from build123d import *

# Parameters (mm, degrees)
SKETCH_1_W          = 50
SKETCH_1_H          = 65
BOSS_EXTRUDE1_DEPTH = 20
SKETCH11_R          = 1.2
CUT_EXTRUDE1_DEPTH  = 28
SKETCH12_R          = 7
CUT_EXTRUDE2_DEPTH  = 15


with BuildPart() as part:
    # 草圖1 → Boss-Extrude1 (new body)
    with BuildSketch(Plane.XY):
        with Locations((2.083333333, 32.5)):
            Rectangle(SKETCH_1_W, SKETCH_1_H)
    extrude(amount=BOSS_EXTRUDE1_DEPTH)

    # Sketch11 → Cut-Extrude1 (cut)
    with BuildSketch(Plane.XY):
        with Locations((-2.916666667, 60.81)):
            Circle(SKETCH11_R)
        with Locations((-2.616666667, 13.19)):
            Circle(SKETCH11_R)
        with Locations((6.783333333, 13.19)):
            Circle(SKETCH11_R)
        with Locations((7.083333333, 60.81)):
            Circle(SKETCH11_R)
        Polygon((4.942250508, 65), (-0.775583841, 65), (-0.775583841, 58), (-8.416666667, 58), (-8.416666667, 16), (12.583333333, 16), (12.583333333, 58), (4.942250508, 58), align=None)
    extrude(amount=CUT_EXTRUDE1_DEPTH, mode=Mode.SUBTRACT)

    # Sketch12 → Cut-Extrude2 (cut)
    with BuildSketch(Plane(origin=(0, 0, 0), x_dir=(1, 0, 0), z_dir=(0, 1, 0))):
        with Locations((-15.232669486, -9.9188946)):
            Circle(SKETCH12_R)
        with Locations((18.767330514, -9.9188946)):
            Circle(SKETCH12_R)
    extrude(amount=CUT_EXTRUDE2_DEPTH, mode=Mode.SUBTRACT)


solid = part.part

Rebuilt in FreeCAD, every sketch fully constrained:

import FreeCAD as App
import Part
import Sketcher


def add_polygon(sketch, points):
    """Adds a closed chain of lines whose ends are joined by coincident constraints."""
    first, n = sketch.GeometryCount, len(points)
    for a, b in zip(points, points[1:] + points[:1]):
        sketch.addGeometry(Part.LineSegment(App.Vector(*a, 0), App.Vector(*b, 0)), False)
    for i in range(n):
        sketch.addConstraint(Sketcher.Constraint("Coincident", first + i, 2, first + (i + 1) % n, 1))

doc = App.newDocument("Part")
body = doc.addObject("PartDesign::Body", "Body")

# Sketch on XY plane
sketch1 = body.newObject("Sketcher::SketchObject", "Sketch")
sketch1.AttachmentSupport = (doc.getObject("XY_Plane"), [""])
sketch1.MapMode = "FlatFace"
add_polygon(sketch1, [(-23, 65), (-23, 0), (27, 0), (27, 65)])  # lines 0-3
sketch1.addConstraint([
    Sketcher.Constraint("Vertical", 0),
    Sketcher.Constraint("Horizontal", 1),
    Sketcher.Constraint("Vertical", 2),
    Sketcher.Constraint("Horizontal", 3),
    Sketcher.Constraint("PointOnObject", 0, 2, -1),
    Sketcher.Constraint("DistanceX", 1, 1, 1, 2, 50.0),
    Sketcher.Constraint("DistanceY", 0, 2, 0, 1, 65.0),
    Sketcher.Constraint("DistanceX", 0, 2, -1, 1, 22.916667),
])
pad1 = body.newObject("PartDesign::Pad", "Pad")
pad1.Profile = sketch1
pad1.Length = 20

# Sketch on XY plane
sketch2 = body.newObject("Sketcher::SketchObject", "Sketch001")
sketch2.AttachmentSupport = (doc.getObject("XY_Plane"), [""])
sketch2.MapMode = "FlatFace"
sketch2.addGeometry(Part.Circle(App.Vector(-2.9, 60.8, 0), App.Vector(0, 0, 1), 1.2), False)  # 0
sketch2.addGeometry(Part.Circle(App.Vector(-2.6, 13.2, 0), App.Vector(0, 0, 1), 1.2), False)  # 1
sketch2.addGeometry(Part.Circle(App.Vector(6.8, 13.2, 0), App.Vector(0, 0, 1), 1.2), False)  # 2
sketch2.addGeometry(Part.Circle(App.Vector(7.1, 60.8, 0), App.Vector(0, 0, 1), 1.2), False)  # 3
add_polygon(sketch2, [(4.9, 65), (-0.8, 65), (-0.8, 58), (-8.4, 58), (-8.4, 16), (12.6, 16), (12.6, 58), (4.9, 58)])  # lines 4-11
sketch2.addConstraint([
    Sketcher.Constraint("Horizontal", 4),
    Sketcher.Constraint("Vertical", 5),
    Sketcher.Constraint("Horizontal", 6),
    Sketcher.Constraint("Vertical", 7),
    Sketcher.Constraint("Horizontal", 8),
    Sketcher.Constraint("Vertical", 9),
    Sketcher.Constraint("Horizontal", 10),
    Sketcher.Constraint("Vertical", 11),
    Sketcher.Constraint("Equal", 0, 1),
    Sketcher.Constraint("Equal", 1, 2),
    Sketcher.Constraint("Equal", 2, 3),
    Sketcher.Constraint("Horizontal", 1, 3, 2, 3),
    Sketcher.Constraint("Horizontal", 0, 3, 3, 3),
    Sketcher.Constraint("Horizontal", 6, 2, 9, 2),
    Sketcher.Constraint("Equal", 6, 10),
    Sketcher.Constraint("Diameter", 0, 2.4),
    Sketcher.Constraint("DistanceX", 8, 1, 8, 2, 21.0),
    Sketcher.Constraint("DistanceY", 5, 2, 5, 1, 7.0),
    Sketcher.Constraint("DistanceY", 7, 2, 7, 1, 42.0),
    Sketcher.Constraint("DistanceY", -1, 1, 4, 2, 65.0),
    Sketcher.Constraint("DistanceX", 0, 3, 3, 3, 10.0),
    Sketcher.Constraint("DistanceX", 0, 3, 1, 3, 0.3),
    Sketcher.Constraint("DistanceX", 1, 3, 2, 3, 9.4),
    Sketcher.Constraint("DistanceX", 6, 2, 0, 3, 5.5),
    Sketcher.Constraint("DistanceY", -1, 1, 0, 3, 60.81),
    Sketcher.Constraint("DistanceY", -1, 1, 1, 3, 13.19),
    Sketcher.Constraint("DistanceX", 4, 2, 4, 1, 5.717834),
    Sketcher.Constraint("DistanceX", -1, 1, 10, 2, 4.942251),
])
pocket1 = body.newObject("PartDesign::Pocket", "Pocket")
pocket1.Profile = sketch2
pocket1.Length = 28
pocket1.Reversed = True

# Sketch on XZ plane
sketch3 = body.newObject("Sketcher::SketchObject", "Sketch002")
sketch3.AttachmentSupport = (doc.getObject("XZ_Plane"), [""])
sketch3.MapMode = "FlatFace"
sketch3.addGeometry([
    Part.Circle(App.Vector(-15, 10, 0), App.Vector(0, 0, 1), 7),
    Part.Circle(App.Vector(19, 10, 0), App.Vector(0, 0, 1), 7),
], False)
sketch3.addConstraint([
    Sketcher.Constraint("Equal", 0, 1),
    Sketcher.Constraint("Horizontal", 0, 3, 1, 3),
    Sketcher.Constraint("Diameter", 0, 14.0),
    Sketcher.Constraint("DistanceX", 0, 3, 1, 3, 34.0),
    Sketcher.Constraint("DistanceX", 0, 3, -1, 1, 15.232669),
    Sketcher.Constraint("DistanceY", -1, 1, 0, 3, 9.918895),
])
pocket2 = body.newObject("PartDesign::Pocket", "Pocket001")
pocket2.Profile = sketch3
pocket2.Length = 15

doc.recompute()
